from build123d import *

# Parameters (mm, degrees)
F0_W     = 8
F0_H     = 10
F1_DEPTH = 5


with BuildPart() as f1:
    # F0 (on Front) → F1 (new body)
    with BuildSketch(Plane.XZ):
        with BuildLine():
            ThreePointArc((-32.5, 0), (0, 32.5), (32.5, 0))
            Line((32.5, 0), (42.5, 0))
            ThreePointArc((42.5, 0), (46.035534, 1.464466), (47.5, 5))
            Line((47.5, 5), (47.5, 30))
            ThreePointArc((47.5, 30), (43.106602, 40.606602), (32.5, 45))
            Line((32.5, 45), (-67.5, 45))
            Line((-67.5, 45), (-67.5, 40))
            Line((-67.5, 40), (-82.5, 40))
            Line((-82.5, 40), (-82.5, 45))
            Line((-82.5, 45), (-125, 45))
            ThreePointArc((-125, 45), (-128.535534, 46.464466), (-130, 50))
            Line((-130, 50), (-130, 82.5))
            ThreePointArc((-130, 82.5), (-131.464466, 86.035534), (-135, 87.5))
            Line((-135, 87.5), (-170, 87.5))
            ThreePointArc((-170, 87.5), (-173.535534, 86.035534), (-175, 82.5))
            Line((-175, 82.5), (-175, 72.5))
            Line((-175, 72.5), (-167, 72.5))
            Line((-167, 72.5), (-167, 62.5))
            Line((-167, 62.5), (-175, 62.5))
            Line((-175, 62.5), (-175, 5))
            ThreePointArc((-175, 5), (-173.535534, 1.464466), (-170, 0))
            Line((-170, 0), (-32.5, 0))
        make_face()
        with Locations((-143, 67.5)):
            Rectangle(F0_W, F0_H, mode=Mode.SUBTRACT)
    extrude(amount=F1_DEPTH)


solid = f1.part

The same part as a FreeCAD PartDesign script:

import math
import FreeCAD as App
import Part
import Sketcher
from FreeCAD import Vector
Q = App.Units.Quantity

doc = App.newDocument("Part")
body = doc.addObject("PartDesign::Body", "Body")

# Sketch on XZ plane
sketch1 = doc.addObject("Sketcher::SketchObject", "Sketch")
body.addObject(sketch1)
sketch1.AttachmentSupport = (doc.XZ_Plane, [""])
sketch1.MapMode = "FlatFace"
sketch1.addGeometry([
    Part.ArcOfCircle(Part.Circle(Vector(0, 0, 0), Vector(0, 0, 1), 32.5), math.radians(0), math.radians(180)),  # 0
    Part.LineSegment(Vector(32.5, 0, 0), Vector(42.5, 0, 0)),  # 1
    Part.ArcOfCircle(Part.Circle(Vector(42.5, 5, 0), Vector(0, 0, 1), 5), math.radians(-90), math.radians(0)),  # 2
    Part.LineSegment(Vector(47.5, 5, 0), Vector(47.5, 30, 0)),  # 3
    Part.ArcOfCircle(Part.Circle(Vector(32.5, 30, 0), Vector(0, 0, 1), 15), math.radians(0), math.radians(90)),  # 4
    Part.LineSegment(Vector(32.5, 45, 0), Vector(-67.5, 45, 0)),  # 5
    Part.LineSegment(Vector(-67.5, 45, 0), Vector(-67.5, 40, 0)),  # 6
    Part.LineSegment(Vector(-67.5, 40, 0), Vector(-82.5, 40, 0)),  # 7
    Part.LineSegment(Vector(-82.5, 40, 0), Vector(-82.5, 45, 0)),  # 8
    Part.LineSegment(Vector(-82.5, 45, 0), Vector(-125, 45, 0)),  # 9
    Part.ArcOfCircle(Part.Circle(Vector(-125, 50, 0), Vector(0, 0, 1), 5), math.radians(180), math.radians(270)),  # 10
    Part.LineSegment(Vector(-130, 50, 0), Vector(-130, 82.5, 0)),  # 11
    Part.ArcOfCircle(Part.Circle(Vector(-135, 82.5, 0), Vector(0, 0, 1), 5), math.radians(0), math.radians(90)),  # 12
    Part.LineSegment(Vector(-135, 87.5, 0), Vector(-170, 87.5, 0)),  # 13
    Part.ArcOfCircle(Part.Circle(Vector(-170, 82.5, 0), Vector(0, 0, 1), 5), math.radians(90), math.radians(180)),  # 14
    Part.LineSegment(Vector(-175, 82.5, 0), Vector(-175, 72.5, 0)),  # 15
    Part.LineSegment(Vector(-175, 72.5, 0), Vector(-167, 72.5, 0)),  # 16
    Part.LineSegment(Vector(-167, 72.5, 0), Vector(-167, 62.5, 0)),  # 17
    Part.LineSegment(Vector(-167, 62.5, 0), Vector(-175, 62.5, 0)),  # 18
    Part.LineSegment(Vector(-175, 62.5, 0), Vector(-175, 5, 0)),  # 19
    Part.ArcOfCircle(Part.Circle(Vector(-170, 5, 0), Vector(0, 0, 1), 5), math.radians(180), math.radians(270)),  # 20
    Part.LineSegment(Vector(-170, 0, 0), Vector(-32.5, 0, 0)),  # 21
    Part.LineSegment(Vector(-139, 62.5, 0), Vector(-147, 62.5, 0)),  # 22
    Part.LineSegment(Vector(-147, 62.5, 0), Vector(-147, 72.5, 0)),  # 23
    Part.LineSegment(Vector(-147, 72.5, 0), Vector(-139, 72.5, 0)),  # 24
    Part.LineSegment(Vector(-139, 72.5, 0), Vector(-139, 62.5, 0)),  # 25
], False)
sketch1.addConstraint([
    Sketcher.Constraint("Coincident", 0, 1, 1, 1),
    Sketcher.Constraint("Tangent", 1, 2, 2, 1),
    Sketcher.Constraint("Tangent", 2, 2, 3, 1),
    Sketcher.Constraint("Tangent", 3, 2, 4, 1),
    Sketcher.Constraint("Tangent", 4, 2, 5, 1),
    Sketcher.Constraint("Coincident", 5, 2, 6, 1),
    Sketcher.Constraint("Coincident", 6, 2, 7, 1),
    Sketcher.Constraint("Coincident", 7, 2, 8, 1),
    Sketcher.Constraint("Coincident", 8, 2, 9, 1),
    Sketcher.Constraint("Tangent", 9, 2, 10, 2),
    Sketcher.Constraint("Tangent", 10, 1, 11, 1),
    Sketcher.Constraint("Tangent", 11, 2, 12, 1),
    Sketcher.Constraint("Tangent", 12, 2, 13, 1),
    Sketcher.Constraint("Tangent", 13, 2, 14, 1),
    Sketcher.Constraint("Tangent", 14, 2, 15, 1),
    Sketcher.Constraint("Coincident", 15, 2, 16, 1),
    Sketcher.Constraint("Coincident", 16, 2, 17, 1),
    Sketcher.Constraint("Coincident", 17, 2, 18, 1),
    Sketcher.Constraint("Coincident", 18, 2, 19, 1),
    Sketcher.Constraint("Tangent", 19, 2, 20, 1),
    Sketcher.Constraint("Tangent", 20, 2, 21, 1),
    Sketcher.Constraint("Coincident", 21, 2, 0, 2),
    Sketcher.Constraint("Coincident", 22, 2, 23, 1),
    Sketcher.Constraint("Coincident", 23, 2, 24, 1),
    Sketcher.Constraint("Coincident", 24, 2, 25, 1),
    Sketcher.Constraint("Coincident", 25, 2, 22, 1),
    Sketcher.Constraint("Horizontal", 1),
    Sketcher.Constraint("Vertical", 3),
    Sketcher.Constraint("Horizontal", 5),
    Sketcher.Constraint("Vertical", 6),
    Sketcher.Constraint("Horizontal", 7),
    Sketcher.Constraint("Vertical", 8),
    Sketcher.Constraint("Horizontal", 9),
    Sketcher.Constraint("Vertical", 11),
    Sketcher.Constraint("Horizontal", 13),
    Sketcher.Constraint("Vertical", 15),
    Sketcher.Constraint("Horizontal", 16),
    Sketcher.Constraint("Vertical", 17),
    Sketcher.Constraint("Horizontal", 18),
    Sketcher.Constraint("Vertical", 19),
    Sketcher.Constraint("Horizontal", 21),
    Sketcher.Constraint("Horizontal", 22),
    Sketcher.Constraint("Vertical", 23),
    Sketcher.Constraint("Horizontal", 24),
    Sketcher.Constraint("Vertical", 25),
    Sketcher.Constraint("Coincident", 0, 3, -1, 1),
    Sketcher.Constraint("Equal", 2, 10),
    Sketcher.Constraint("Equal", 10, 12),
    Sketcher.Constraint("Equal", 12, 14),
    Sketcher.Constraint("Equal", 14, 20),
    Sketcher.Constraint("PointOnObject", 0, 1, -1),
    Sketcher.Constraint("PointOnObject", 20, 2, -1),
    Sketcher.Constraint("Horizontal", 5, 2, 8, 2),
    Sketcher.Constraint("Horizontal", 18, 2, 22, 2),
    Sketcher.Constraint("Horizontal", 16, 2, 23, 2),
    Sketcher.Constraint("Vertical", 14, 3, 20, 3),
    Sketcher.Constraint("Vertical", 4, 3, 0, 1),
    Sketcher.Constraint("Equal", 18, 22),
    Sketcher.Constraint("Equal", 1, 15),
    Sketcher.Constraint("Equal", 15, 17),
    Sketcher.Constraint("Radius", 2, Q("5 mm")),
    Sketcher.Constraint("Radius", 4, Q("14.999999 mm")),
    Sketcher.Constraint("Radius", 0, Q("32.5 mm")),
    Sketcher.Constraint("DistanceX", 5, 2, 5, 1, Q("100 mm")),
    Sketcher.Constraint("DistanceX", 7, 2, 7, 1, Q("15 mm")),
    Sketcher.Constraint("DistanceX", 13, 2, 13, 1, Q("35 mm")),
    Sketcher.Constraint("DistanceX", 16, 1, 16, 2, Q("8 mm")),
    Sketcher.Constraint("DistanceY", 3, 1, 3, 2, Q("25 mm")),
    Sketcher.Constraint("DistanceY", 6, 2, 6, 1, Q("5 mm")),
    Sketcher.Constraint("DistanceX", 9, 2, 9, 1, Q("42.5 mm")),
    Sketcher.Constraint("DistanceY", 11, 1, 11, 2, Q("32.5 mm")),
    Sketcher.Constraint("DistanceX", 22, 2, -1, 1, Q("147 mm")),
])
pad1 = doc.addObject("PartDesign::Pad", "Pad")
body.addObject(pad1)
pad1.Profile = sketch1
pad1.Length = 5

doc.recompute()
